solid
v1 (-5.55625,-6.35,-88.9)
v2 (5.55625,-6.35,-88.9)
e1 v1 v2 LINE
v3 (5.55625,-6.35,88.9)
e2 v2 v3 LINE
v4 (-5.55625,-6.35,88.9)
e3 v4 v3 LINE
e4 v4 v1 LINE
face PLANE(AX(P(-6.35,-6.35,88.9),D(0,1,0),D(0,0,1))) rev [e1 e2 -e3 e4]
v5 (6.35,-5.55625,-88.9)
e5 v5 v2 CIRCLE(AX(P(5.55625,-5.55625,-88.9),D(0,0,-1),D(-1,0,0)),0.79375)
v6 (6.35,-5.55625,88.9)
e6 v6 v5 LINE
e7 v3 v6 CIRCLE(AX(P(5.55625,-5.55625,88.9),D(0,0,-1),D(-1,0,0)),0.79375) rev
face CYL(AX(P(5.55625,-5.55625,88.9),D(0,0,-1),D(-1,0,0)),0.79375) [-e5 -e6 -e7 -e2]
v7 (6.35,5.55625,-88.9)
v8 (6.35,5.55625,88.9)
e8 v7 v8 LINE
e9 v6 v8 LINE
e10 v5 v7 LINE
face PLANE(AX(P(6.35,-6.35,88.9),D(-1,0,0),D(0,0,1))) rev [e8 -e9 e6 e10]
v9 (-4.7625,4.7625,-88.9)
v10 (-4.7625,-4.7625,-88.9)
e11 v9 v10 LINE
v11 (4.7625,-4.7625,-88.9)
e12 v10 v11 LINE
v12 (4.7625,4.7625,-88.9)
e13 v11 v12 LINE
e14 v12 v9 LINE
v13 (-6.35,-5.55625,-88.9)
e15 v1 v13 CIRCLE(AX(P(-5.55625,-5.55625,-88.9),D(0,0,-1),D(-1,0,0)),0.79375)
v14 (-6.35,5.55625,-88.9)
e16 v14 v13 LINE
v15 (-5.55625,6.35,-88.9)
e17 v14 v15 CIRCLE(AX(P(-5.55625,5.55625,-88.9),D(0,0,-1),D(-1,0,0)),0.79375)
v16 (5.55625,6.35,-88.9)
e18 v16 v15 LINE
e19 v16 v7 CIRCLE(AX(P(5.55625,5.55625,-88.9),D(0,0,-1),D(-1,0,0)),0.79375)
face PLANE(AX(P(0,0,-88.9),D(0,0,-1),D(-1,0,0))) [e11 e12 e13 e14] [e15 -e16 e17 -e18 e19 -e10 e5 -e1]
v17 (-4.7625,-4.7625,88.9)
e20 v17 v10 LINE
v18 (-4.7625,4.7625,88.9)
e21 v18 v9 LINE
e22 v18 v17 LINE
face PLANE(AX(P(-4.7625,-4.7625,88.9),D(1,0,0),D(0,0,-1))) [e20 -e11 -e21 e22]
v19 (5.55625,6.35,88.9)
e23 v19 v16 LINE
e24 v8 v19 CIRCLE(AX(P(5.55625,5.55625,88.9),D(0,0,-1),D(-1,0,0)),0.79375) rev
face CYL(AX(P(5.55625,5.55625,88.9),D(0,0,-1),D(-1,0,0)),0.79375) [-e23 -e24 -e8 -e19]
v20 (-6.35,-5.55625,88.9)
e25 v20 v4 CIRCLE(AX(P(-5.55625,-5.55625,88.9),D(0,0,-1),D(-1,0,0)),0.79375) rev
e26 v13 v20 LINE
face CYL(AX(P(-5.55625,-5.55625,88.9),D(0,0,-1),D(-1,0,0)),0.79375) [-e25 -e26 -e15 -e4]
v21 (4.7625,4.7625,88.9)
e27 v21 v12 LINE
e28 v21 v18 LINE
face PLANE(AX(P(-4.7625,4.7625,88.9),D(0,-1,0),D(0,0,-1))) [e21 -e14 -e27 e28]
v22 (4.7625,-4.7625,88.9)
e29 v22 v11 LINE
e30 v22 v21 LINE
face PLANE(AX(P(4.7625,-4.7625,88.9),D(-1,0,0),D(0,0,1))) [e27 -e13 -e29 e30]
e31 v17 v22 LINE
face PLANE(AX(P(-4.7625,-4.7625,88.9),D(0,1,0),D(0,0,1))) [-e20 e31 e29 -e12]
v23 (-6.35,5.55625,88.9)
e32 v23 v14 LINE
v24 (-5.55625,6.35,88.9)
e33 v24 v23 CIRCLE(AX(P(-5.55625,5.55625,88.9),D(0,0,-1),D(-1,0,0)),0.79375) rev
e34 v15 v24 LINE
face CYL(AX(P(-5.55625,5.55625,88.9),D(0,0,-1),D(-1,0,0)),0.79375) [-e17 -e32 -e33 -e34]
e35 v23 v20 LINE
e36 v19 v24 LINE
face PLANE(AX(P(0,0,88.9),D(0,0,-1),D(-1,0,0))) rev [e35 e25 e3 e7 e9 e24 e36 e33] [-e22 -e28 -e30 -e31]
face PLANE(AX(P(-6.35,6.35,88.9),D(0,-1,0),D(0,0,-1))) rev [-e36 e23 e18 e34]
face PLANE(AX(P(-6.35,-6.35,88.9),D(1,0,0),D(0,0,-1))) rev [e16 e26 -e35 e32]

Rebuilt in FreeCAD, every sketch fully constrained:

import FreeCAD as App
import Part
import Sketcher

V = App.Vector
Q = App.Units.Quantity


def edges_at(feature, points):
    """Names of the edges that pass closest to the given points."""
    edges = feature.Shape.Edges
    near = lambda p: min(range(len(edges)), key=lambda i: edges[i].distToShape(Part.Vertex(*p))[0])
    return sorted({f"Edge{near(p) + 1}" for p in points})

doc = App.newDocument("Part")
body = doc.addObject("PartDesign::Body", "Body")

sketch1 = body.newObject("Sketcher::SketchObject", "Sketch")
sketch1.AttachmentSupport = (doc.getObject("XY_Plane"), [""])
sketch1.MapMode = "FlatFace"
sketch1.addGeometry(Part.LineSegment(V(-6, 6, 0), V(-6, -6, 0)), False)
sketch1.addGeometry(Part.LineSegment(V(-6, -6, 0), V(6, -6, 0)), False)
sketch1.addGeometry(Part.LineSegment(V(6, -6, 0), V(6, 6, 0)), False)
sketch1.addGeometry(Part.LineSegment(V(6, 6, 0), V(-6, 6, 0)), False)
sketch1.addGeometry(Part.LineSegment(V(5, -5, 0), V(-5, -5, 0)), False)
sketch1.addGeometry(Part.LineSegment(V(-5, -5, 0), V(-5, 5, 0)), False)
sketch1.addGeometry(Part.LineSegment(V(-5, 5, 0), V(5, 5, 0)), False)
sketch1.addGeometry(Part.LineSegment(V(5, 5, 0), V(5, -5, 0)), False)
sketch1.addConstraint(Sketcher.Constraint("Coincident", 0, 2, 1, 1))
sketch1.addConstraint(Sketcher.Constraint("Coincident", 1, 2, 2, 1))
sketch1.addConstraint(Sketcher.Constraint("Coincident", 2, 2, 3, 1))
sketch1.addConstraint(Sketcher.Constraint("Coincident", 3, 2, 0, 1))
sketch1.addConstraint(Sketcher.Constraint("Coincident", 4, 2, 5, 1))
sketch1.addConstraint(Sketcher.Constraint("Coincident", 5, 2, 6, 1))
sketch1.addConstraint(Sketcher.Constraint("Coincident", 6, 2, 7, 1))
sketch1.addConstraint(Sketcher.Constraint("Coincident", 7, 2, 4, 1))
sketch1.addConstraint(Sketcher.Constraint("Vertical", 0))
sketch1.addConstraint(Sketcher.Constraint("Horizontal", 1))
sketch1.addConstraint(Sketcher.Constraint("Vertical", 2))
sketch1.addConstraint(Sketcher.Constraint("Horizontal", 3))
sketch1.addConstraint(Sketcher.Constraint("Horizontal", 4))
sketch1.addConstraint(Sketcher.Constraint("Vertical", 5))
sketch1.addConstraint(Sketcher.Constraint("Horizontal", 6))
sketch1.addConstraint(Sketcher.Constraint("Vertical", 7))
sketch1.addConstraint(Sketcher.Constraint("Symmetric", 0, 2, 2, 2, -1, 1))
sketch1.addConstraint(Sketcher.Constraint("Symmetric", 4, 2, 6, 2, -1, 1))
sketch1.addConstraint(Sketcher.Constraint("Equal", 3, 0))
sketch1.addConstraint(Sketcher.Constraint("Equal", 6, 5))
sketch1.addConstraint(Sketcher.Constraint("DistanceX", 1, 1, 1, 2, Q("0.5 in")))
sketch1.addConstraint(Sketcher.Constraint("DistanceX", 4, 2, 4, 1, Q("0.375 in")))
pad1 = body.newObject("PartDesign::Pad", "Pad")
pad1.Profile = sketch1
pad1.Type = "TwoLengths"
pad1.Length = Q("3.5 in")
pad1.Length2 = Q("3.5 in")
doc.recompute()

fillet = body.newObject("PartDesign::Fillet", "Fillet")
fillet.Base = (pad1, edges_at(pad1, [
    (6.35, -6.35, 0),
    (-6.35, -6.35, 0),
    (-6.35, 6.35, 0),
    (6.35, 6.35, 0),
]))
fillet.Radius = Q("0.03125 in")

doc.recompute()
